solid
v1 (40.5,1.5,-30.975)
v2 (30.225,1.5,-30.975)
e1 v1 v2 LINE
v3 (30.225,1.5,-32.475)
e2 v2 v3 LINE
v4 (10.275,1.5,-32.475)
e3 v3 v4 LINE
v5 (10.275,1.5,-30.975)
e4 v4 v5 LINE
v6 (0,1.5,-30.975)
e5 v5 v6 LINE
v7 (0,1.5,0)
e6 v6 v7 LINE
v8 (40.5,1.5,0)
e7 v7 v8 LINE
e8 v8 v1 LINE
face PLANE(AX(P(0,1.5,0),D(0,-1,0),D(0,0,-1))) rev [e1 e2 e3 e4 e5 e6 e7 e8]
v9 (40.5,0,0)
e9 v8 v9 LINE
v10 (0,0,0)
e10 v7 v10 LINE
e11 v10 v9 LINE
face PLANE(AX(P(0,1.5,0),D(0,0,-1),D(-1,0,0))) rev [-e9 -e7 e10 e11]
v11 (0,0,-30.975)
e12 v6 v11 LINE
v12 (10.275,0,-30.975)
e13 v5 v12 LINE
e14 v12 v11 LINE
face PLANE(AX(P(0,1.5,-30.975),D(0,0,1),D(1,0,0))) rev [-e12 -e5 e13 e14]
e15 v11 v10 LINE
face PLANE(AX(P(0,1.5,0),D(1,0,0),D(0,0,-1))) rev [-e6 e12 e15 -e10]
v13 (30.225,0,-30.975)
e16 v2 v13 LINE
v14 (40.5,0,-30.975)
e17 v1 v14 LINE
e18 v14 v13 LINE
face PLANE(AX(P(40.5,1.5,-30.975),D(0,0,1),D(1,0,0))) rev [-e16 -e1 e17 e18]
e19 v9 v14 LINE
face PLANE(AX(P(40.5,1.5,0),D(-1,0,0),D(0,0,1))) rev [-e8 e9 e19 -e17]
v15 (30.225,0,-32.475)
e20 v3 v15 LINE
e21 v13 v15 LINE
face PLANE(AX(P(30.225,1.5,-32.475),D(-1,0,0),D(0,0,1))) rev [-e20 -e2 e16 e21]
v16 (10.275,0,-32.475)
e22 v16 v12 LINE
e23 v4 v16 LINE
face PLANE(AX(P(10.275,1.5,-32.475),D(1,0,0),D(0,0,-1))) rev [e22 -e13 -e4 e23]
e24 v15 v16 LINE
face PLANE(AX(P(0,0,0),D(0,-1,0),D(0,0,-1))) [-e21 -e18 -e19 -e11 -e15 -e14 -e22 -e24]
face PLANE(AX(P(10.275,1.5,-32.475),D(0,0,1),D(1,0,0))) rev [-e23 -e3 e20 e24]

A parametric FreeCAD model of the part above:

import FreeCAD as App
import Part
import Sketcher
Q = App.Units.Quantity


def add_polygon(sketch, points):
    """Adds a closed chain of lines whose ends are joined by coincident constraints."""
    first, n = sketch.GeometryCount, len(points)
    for a, b in zip(points, points[1:] + points[:1]):
        sketch.addGeometry(Part.LineSegment(App.Vector(*a, 0), App.Vector(*b, 0)), False)
    for i in range(n):
        sketch.addConstraint(Sketcher.Constraint("Coincident", first + i, 2, first + (i + 1) % n, 1))

doc = App.newDocument("Part")
body = doc.addObject("PartDesign::Body", "Body")

# Sketch on XZ plane
sketch1 = body.newObject("Sketcher::SketchObject", "Sketch")
sketch1.AttachmentSupport = (doc.getObject("XZ_Plane"), [""])
sketch1.MapMode = "FlatFace"
add_polygon(sketch1, [(0, 0), (40.5, 0), (40.5, -31), (30.2, -31), (30.2, -32.5), (10.3, -32.5), (10.3, -31), (0, -31)])  # lines 0-7
sketch1.addConstraint([
    Sketcher.Constraint("Horizontal", 0),
    Sketcher.Constraint("Vertical", 1),
    Sketcher.Constraint("Horizontal", 2),
    Sketcher.Constraint("Vertical", 3),
    Sketcher.Constraint("Horizontal", 4),
    Sketcher.Constraint("Vertical", 5),
    Sketcher.Constraint("Horizontal", 6),
    Sketcher.Constraint("Vertical", 7),
    Sketcher.Constraint("Coincident", 7, 2, -1, 1),
    Sketcher.Constraint("Horizontal", 2, 2, 5, 2),
    Sketcher.Constraint("Equal", 2, 6),
    Sketcher.Constraint("DistanceX", 0, 1, 0, 2, Q("40.5 mm")),
    Sketcher.Constraint("DistanceY", 3, 2, 3, 1, Q("1.5 mm")),
    Sketcher.Constraint("DistanceX", 4, 2, 4, 1, Q("19.95 mm")),
    Sketcher.Constraint("DistanceY", 1, 2, 1, 1, Q("30.975 mm")),
])
pad1 = body.newObject("PartDesign::Pad", "Pad")
pad1.Profile = sketch1
pad1.Length = 1.5
pad1.Reversed = True

doc.recompute()
